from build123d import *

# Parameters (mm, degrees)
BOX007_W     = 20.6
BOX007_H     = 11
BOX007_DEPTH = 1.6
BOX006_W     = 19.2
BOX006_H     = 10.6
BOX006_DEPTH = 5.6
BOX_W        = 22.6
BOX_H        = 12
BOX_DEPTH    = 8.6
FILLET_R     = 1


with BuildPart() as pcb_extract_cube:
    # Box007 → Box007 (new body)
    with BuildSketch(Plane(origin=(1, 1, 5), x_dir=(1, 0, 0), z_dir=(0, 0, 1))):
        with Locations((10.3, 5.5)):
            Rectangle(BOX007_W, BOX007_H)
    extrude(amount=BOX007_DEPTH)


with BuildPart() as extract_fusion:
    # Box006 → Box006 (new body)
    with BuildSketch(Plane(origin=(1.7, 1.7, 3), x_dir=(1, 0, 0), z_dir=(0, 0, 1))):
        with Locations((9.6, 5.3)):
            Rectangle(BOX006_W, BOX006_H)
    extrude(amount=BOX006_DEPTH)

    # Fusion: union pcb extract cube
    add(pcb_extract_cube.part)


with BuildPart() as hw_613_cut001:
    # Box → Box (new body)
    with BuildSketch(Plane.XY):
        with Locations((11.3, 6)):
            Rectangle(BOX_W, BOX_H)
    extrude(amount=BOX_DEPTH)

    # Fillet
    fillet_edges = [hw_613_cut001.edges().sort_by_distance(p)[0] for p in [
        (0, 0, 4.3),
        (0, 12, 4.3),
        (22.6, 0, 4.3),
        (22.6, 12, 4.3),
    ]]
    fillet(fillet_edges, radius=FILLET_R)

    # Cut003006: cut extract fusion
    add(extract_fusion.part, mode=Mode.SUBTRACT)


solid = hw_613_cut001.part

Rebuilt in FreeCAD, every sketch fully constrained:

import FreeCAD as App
import Part
import Sketcher


def edges_at(feature, points):
    """Names of the edges that pass closest to the given points."""
    edges = feature.Shape.Edges
    near = lambda p: min(range(len(edges)), key=lambda i: edges[i].distToShape(Part.Vertex(*p))[0])
    return sorted({f"Edge{near(p) + 1}" for p in points})

doc = App.newDocument("Part")
body = doc.addObject("PartDesign::Body", "Body")

# Sketch on XY plane
sketch1 = body.newObject("Sketcher::SketchObject", "Sketch")
sketch1.AttachmentSupport = (doc.getObject("XY_Plane"), [""])
sketch1.MapMode = "FlatFace"
sketch1.AttachmentOffset = App.Placement(App.Vector(0, 0, 5), App.Rotation())
sketch1.addGeometry(Part.LineSegment(App.Vector(1, 12, 0), App.Vector(1, 1, 0)), False)
sketch1.addGeometry(Part.LineSegment(App.Vector(1, 1, 0), App.Vector(21.6, 1, 0)), False)
sketch1.addGeometry(Part.LineSegment(App.Vector(21.6, 1, 0), App.Vector(21.6, 12, 0)), False)
sketch1.addGeometry(Part.LineSegment(App.Vector(21.6, 12, 0), App.Vector(1, 12, 0)), False)
sketch1.addConstraint(Sketcher.Constraint("Coincident", 0, 2, 1, 1))
sketch1.addConstraint(Sketcher.Constraint("Coincident", 1, 2, 2, 1))
sketch1.addConstraint(Sketcher.Constraint("Coincident", 2, 2, 3, 1))
sketch1.addConstraint(Sketcher.Constraint("Coincident", 3, 2, 0, 1))
sketch1.addConstraint(Sketcher.Constraint("Vertical", 0))
sketch1.addConstraint(Sketcher.Constraint("Horizontal", 1))
sketch1.addConstraint(Sketcher.Constraint("Vertical", 2))
sketch1.addConstraint(Sketcher.Constraint("Horizontal", 3))
sketch1.addConstraint(Sketcher.Constraint("DistanceY", 0, 2, 0, 1, 11.0))
sketch1.addConstraint(Sketcher.Constraint("DistanceX", 1, 1, 1, 2, 20.6))
sketch1.addConstraint(Sketcher.Constraint("DistanceX", -1, 1, 0, 2, 1.0))
sketch1.addConstraint(Sketcher.Constraint("DistanceY", -1, 1, 0, 2, 1.0))
pad1 = body.newObject("PartDesign::Pad", "Pad")
pad1.Profile = sketch1
pad1.Length = 1.6
body2 = doc.addObject("PartDesign::Body", "Body001")

# Sketch on XY plane
sketch2 = body2.newObject("Sketcher::SketchObject", "Sketch001")
sketch2.AttachmentSupport = (doc.getObject("XY_Plane001"), [""])
sketch2.MapMode = "FlatFace"
sketch2.AttachmentOffset = App.Placement(App.Vector(0, 0, 3), App.Rotation())
sketch2.addGeometry(Part.LineSegment(App.Vector(1.7, 12.3, 0), App.Vector(1.7, 1.7, 0)), False)
sketch2.addGeometry(Part.LineSegment(App.Vector(1.7, 1.7, 0), App.Vector(20.9, 1.7, 0)), False)
sketch2.addGeometry(Part.LineSegment(App.Vector(20.9, 1.7, 0), App.Vector(20.9, 12.3, 0)), False)
sketch2.addGeometry(Part.LineSegment(App.Vector(20.9, 12.3, 0), App.Vector(1.7, 12.3, 0)), False)
sketch2.addConstraint(Sketcher.Constraint("Coincident", 0, 2, 1, 1))
sketch2.addConstraint(Sketcher.Constraint("Coincident", 1, 2, 2, 1))
sketch2.addConstraint(Sketcher.Constraint("Coincident", 2, 2, 3, 1))
sketch2.addConstraint(Sketcher.Constraint("Coincident", 3, 2, 0, 1))
sketch2.addConstraint(Sketcher.Constraint("Vertical", 0))
sketch2.addConstraint(Sketcher.Constraint("Horizontal", 1))
sketch2.addConstraint(Sketcher.Constraint("Vertical", 2))
sketch2.addConstraint(Sketcher.Constraint("Horizontal", 3))
sketch2.addConstraint(Sketcher.Constraint("DistanceX", 1, 1, 1, 2, 19.2))
sketch2.addConstraint(Sketcher.Constraint("DistanceY", 0, 2, 0, 1, 10.6))
sketch2.addConstraint(Sketcher.Constraint("DistanceX", -1, 1, 0, 2, 1.7))
sketch2.addConstraint(Sketcher.Constraint("DistanceY", -1, 1, 0, 2, 1.7))
pad2 = body2.newObject("PartDesign::Pad", "Pad001")
pad2.Profile = sketch2
pad2.Length = 5.6
doc.recompute()

boolean = body2.newObject("PartDesign::Boolean", "Boolean")
boolean.Type = "Fuse"
boolean.addObjects([body])
body3 = doc.addObject("PartDesign::Body", "Body002")

# Sketch on XY plane
sketch3 = body3.newObject("Sketcher::SketchObject", "Sketch002")
sketch3.AttachmentSupport = (doc.getObject("XY_Plane002"), [""])
sketch3.MapMode = "FlatFace"
sketch3.addGeometry(Part.LineSegment(App.Vector(0, 12, 0), App.Vector(0, 0, 0)), False)
sketch3.addGeometry(Part.LineSegment(App.Vector(0, 0, 0), App.Vector(22.6, 0, 0)), False)
sketch3.addGeometry(Part.LineSegment(App.Vector(22.6, 0, 0), App.Vector(22.6, 12, 0)), False)
sketch3.addGeometry(Part.LineSegment(App.Vector(22.6, 12, 0), App.Vector(0, 12, 0)), False)
sketch3.addConstraint(Sketcher.Constraint("Coincident", 0, 2, 1, 1))
sketch3.addConstraint(Sketcher.Constraint("Coincident", 1, 2, 2, 1))
sketch3.addConstraint(Sketcher.Constraint("Coincident", 2, 2, 3, 1))
sketch3.addConstraint(Sketcher.Constraint("Coincident", 3, 2, 0, 1))
sketch3.addConstraint(Sketcher.Constraint("Vertical", 0))
sketch3.addConstraint(Sketcher.Constraint("Horizontal", 1))
sketch3.addConstraint(Sketcher.Constraint("Vertical", 2))
sketch3.addConstraint(Sketcher.Constraint("Horizontal", 3))
sketch3.addConstraint(Sketcher.Constraint("Coincident", 0, 2, -1, 1))
sketch3.addConstraint(Sketcher.Constraint("DistanceY", 0, 2, 0, 1, 12.0))
sketch3.addConstraint(Sketcher.Constraint("DistanceX", 1, 1, 1, 2, 22.6))
pad3 = body3.newObject("PartDesign::Pad", "Pad002")
pad3.Profile = sketch3
pad3.Length = 8.6
doc.recompute()

fillet = body3.newObject("PartDesign::Fillet", "Fillet")
fillet.Base = (pad3, edges_at(pad3, [
    (0, 0, 4.3),
    (0, 12, 4.3),
    (22.6, 0, 4.3),
    (22.6, 12, 4.3),
]))
fillet.Radius = 1
doc.recompute()

boolean2 = body3.newObject("PartDesign::Boolean", "Boolean001")
boolean2.Type = "Cut"
boolean2.addObjects([body2])

doc.recompute()
